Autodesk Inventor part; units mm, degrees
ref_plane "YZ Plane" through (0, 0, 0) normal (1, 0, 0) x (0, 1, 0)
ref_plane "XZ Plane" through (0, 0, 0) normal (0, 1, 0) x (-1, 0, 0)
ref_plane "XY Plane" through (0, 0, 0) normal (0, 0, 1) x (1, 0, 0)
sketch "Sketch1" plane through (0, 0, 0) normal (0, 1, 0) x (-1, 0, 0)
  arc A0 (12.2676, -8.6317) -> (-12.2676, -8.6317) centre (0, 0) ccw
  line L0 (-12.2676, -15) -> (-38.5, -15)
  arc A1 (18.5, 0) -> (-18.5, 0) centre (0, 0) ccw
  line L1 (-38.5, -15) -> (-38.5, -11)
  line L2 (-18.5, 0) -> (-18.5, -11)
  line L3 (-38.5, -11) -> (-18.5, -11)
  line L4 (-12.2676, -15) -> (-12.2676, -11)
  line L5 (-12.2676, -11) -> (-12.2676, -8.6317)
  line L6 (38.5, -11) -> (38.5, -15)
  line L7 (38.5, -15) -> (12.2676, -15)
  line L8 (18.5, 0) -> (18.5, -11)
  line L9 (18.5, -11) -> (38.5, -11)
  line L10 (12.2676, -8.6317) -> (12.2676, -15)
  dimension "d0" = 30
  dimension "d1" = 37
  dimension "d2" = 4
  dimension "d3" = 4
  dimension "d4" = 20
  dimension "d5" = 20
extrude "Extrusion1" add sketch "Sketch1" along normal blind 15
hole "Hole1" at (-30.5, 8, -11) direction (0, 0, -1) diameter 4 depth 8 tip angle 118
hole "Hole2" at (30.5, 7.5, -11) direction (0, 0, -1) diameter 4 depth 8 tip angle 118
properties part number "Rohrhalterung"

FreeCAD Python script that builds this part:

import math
import FreeCAD as App
import Part
import Sketcher
from FreeCAD import Vector
Q = App.Units.Quantity

doc = App.newDocument("Part")
params = doc.addObject("Spreadsheet::Sheet", "Params")
for row, (alias, value) in enumerate([
    ("sketch1_radius", "15 mm"),
    ("sketch1_radius2", "18.5 mm"),
    ("sketch1_width", "20 mm"),
    ("sketch1_height", "4 mm"),
    ("sketch1_height2", "11 mm"),
    ("pad1_length", "15 mm"),
    ("sketch2_diameter", "4 mm"),
    ("hole_diameter", "4 mm"),
    ("hole_depth", "8 mm"),
    ("sketch3_diameter", "4 mm"),
    ("hole2_diameter", "4 mm"),
    ("hole2_depth", "8 mm"),
], start=1):
    params.set(f"A{row}", alias)
    params.set(f"B{row}", "=" + value)
    params.setAlias(f"B{row}", alias)

body = doc.addObject("PartDesign::Body", "Body")

sketch1 = body.newObject("Sketcher::SketchObject", "Sketch")
sketch1.AttachmentSupport = (doc.getObject("XZ_Plane"), [""])
sketch1.MapMode = "FlatFace"
sketch1.addGeometry(Part.ArcOfCircle(Part.Circle(Vector(0, 0, 0), Vector(0, 0, 1), 15), math.radians(-35), math.radians(215)), False)
sketch1.addGeometry(Part.LineSegment(Vector(-12.3, -8.6, 0), Vector(-12.3, -15, 0)), False)
sketch1.addGeometry(Part.LineSegment(Vector(-12.3, -15, 0), Vector(-38.5, -15, 0)), False)
sketch1.addGeometry(Part.LineSegment(Vector(-38.5, -15, 0), Vector(-38.5, -11, 0)), False)
sketch1.addGeometry(Part.LineSegment(Vector(-38.5, -11, 0), Vector(-18.5, -11, 0)), False)
sketch1.addGeometry(Part.LineSegment(Vector(-18.5, -11, 0), Vector(-18.5, 0, 0)), False)
sketch1.addGeometry(Part.ArcOfCircle(Part.Circle(Vector(0, 0, 0), Vector(0, 0, 1), 18.5), math.radians(0), math.radians(180)), False)
sketch1.addGeometry(Part.LineSegment(Vector(18.5, 0, 0), Vector(18.5, -11, 0)), False)
sketch1.addGeometry(Part.LineSegment(Vector(18.5, -11, 0), Vector(38.5, -11, 0)), False)
sketch1.addGeometry(Part.LineSegment(Vector(38.5, -11, 0), Vector(38.5, -15, 0)), False)
sketch1.addGeometry(Part.LineSegment(Vector(38.5, -15, 0), Vector(12.3, -15, 0)), False)
sketch1.addGeometry(Part.LineSegment(Vector(12.3, -15, 0), Vector(12.3, -8.6, 0)), False)
sketch1.addConstraint(Sketcher.Constraint("Coincident", 0, 2, 1, 1))
sketch1.addConstraint(Sketcher.Constraint("Coincident", 1, 2, 2, 1))
sketch1.addConstraint(Sketcher.Constraint("Coincident", 2, 2, 3, 1))
sketch1.addConstraint(Sketcher.Constraint("Coincident", 3, 2, 4, 1))
sketch1.addConstraint(Sketcher.Constraint("Coincident", 4, 2, 5, 1))
sketch1.addConstraint(Sketcher.Constraint("Tangent", 5, 2, 6, 2))
sketch1.addConstraint(Sketcher.Constraint("Tangent", 6, 1, 7, 1))
sketch1.addConstraint(Sketcher.Constraint("Coincident", 7, 2, 8, 1))
sketch1.addConstraint(Sketcher.Constraint("Coincident", 8, 2, 9, 1))
sketch1.addConstraint(Sketcher.Constraint("Coincident", 9, 2, 10, 1))
sketch1.addConstraint(Sketcher.Constraint("Coincident", 10, 2, 11, 1))
sketch1.addConstraint(Sketcher.Constraint("Coincident", 11, 2, 0, 1))
sketch1.addConstraint(Sketcher.Constraint("Vertical", 1))
sketch1.addConstraint(Sketcher.Constraint("Horizontal", 2))
sketch1.addConstraint(Sketcher.Constraint("Vertical", 3))
sketch1.addConstraint(Sketcher.Constraint("Horizontal", 4))
sketch1.addConstraint(Sketcher.Constraint("Vertical", 5))
sketch1.addConstraint(Sketcher.Constraint("Vertical", 7))
sketch1.addConstraint(Sketcher.Constraint("Horizontal", 8))
sketch1.addConstraint(Sketcher.Constraint("Vertical", 9))
sketch1.addConstraint(Sketcher.Constraint("Horizontal", 10))
sketch1.addConstraint(Sketcher.Constraint("Vertical", 11))
sketch1.addConstraint(Sketcher.Constraint("Coincident", 0, 3, -1, 1))
sketch1.addConstraint(Sketcher.Constraint("Coincident", 6, 3, -1, 1))
sketch1.addConstraint(Sketcher.Constraint("Symmetric", 3, 2, 8, 2, -2))
sketch1.addConstraint(Sketcher.Constraint("Symmetric", 1, 2, 10, 2, -2))
sketch1.addConstraint(Sketcher.Constraint("Radius", 0, Q("15 mm")))
sketch1.addConstraint(Sketcher.Constraint("Radius", 6, Q("18.5 mm")))
sketch1.addConstraint(Sketcher.Constraint("DistanceX", 4, 1, 4, 2, Q("20 mm")))
sketch1.addConstraint(Sketcher.Constraint("DistanceY", 3, 1, 3, 2, Q("4 mm")))
sketch1.addConstraint(Sketcher.Constraint("DistanceY", 5, 1, 5, 2, Q("11 mm")))
sketch1.addConstraint(Sketcher.Constraint("DistanceX", 2, 2, 2, 1, Q("26.2324 mm")))
sketch1.setExpression("Constraints[26]", "Params.sketch1_radius")
sketch1.setExpression("Constraints[27]", "Params.sketch1_radius2")
sketch1.setExpression("Constraints[28]", "Params.sketch1_width")
sketch1.setExpression("Constraints[29]", "Params.sketch1_height")
sketch1.setExpression("Constraints[30]", "Params.sketch1_height2")
pad1 = body.newObject("PartDesign::Pad", "Pad")
pad1.Profile = sketch1
pad1.setExpression("Length", "Params.pad1_length")
pad1.Reversed = True

sketch2 = body.newObject("Sketcher::SketchObject", "Sketch001")
sketch2.AttachmentSupport = (doc.getObject("XY_Plane"), [""])
sketch2.MapMode = "FlatFace"
sketch2.AttachmentOffset = App.Placement(Vector(0, 0, -11), App.Rotation())
sketch2.addGeometry(Part.Circle(Vector(-30.5, 8, 0), Vector(0, 0, 1), 2), False)
sketch2.addConstraint(Sketcher.Constraint("Diameter", 0, Q("4 mm")))
sketch2.addConstraint(Sketcher.Constraint("DistanceY", -1, 1, 0, 3, Q("8 mm")))
sketch2.addConstraint(Sketcher.Constraint("DistanceX", 0, 3, -1, 1, Q("30.5 mm")))
sketch2.setExpression("Constraints[0]", "Params.sketch2_diameter")
doc.recompute()
hole = body.newObject("PartDesign::Hole", "Hole")
hole.Profile = sketch2
hole.ThreadType = "None"
hole.setExpression("Diameter", "Params.hole_diameter")
hole.DepthType = "Dimension"
hole.setExpression("Depth", "Params.hole_depth")
hole.DrillPoint = "Angled"
hole.DrillPointAngle = 118

sketch3 = body.newObject("Sketcher::SketchObject", "Sketch002")
sketch3.AttachmentSupport = (doc.getObject("XY_Plane"), [""])
sketch3.MapMode = "FlatFace"
sketch3.AttachmentOffset = App.Placement(Vector(0, 0, -11), App.Rotation())
sketch3.addGeometry(Part.Circle(Vector(30.5, 7.5, 0), Vector(0, 0, 1), 2), False)
sketch3.addConstraint(Sketcher.Constraint("Diameter", 0, Q("4 mm")))
sketch3.addConstraint(Sketcher.Constraint("DistanceX", -1, 1, 0, 3, Q("30.5 mm")))
sketch3.addConstraint(Sketcher.Constraint("DistanceY", -1, 1, 0, 3, Q("7.5 mm")))
sketch3.setExpression("Constraints[0]", "Params.sketch3_diameter")
doc.recompute()
hole2 = body.newObject("PartDesign::Hole", "Hole001")
hole2.Profile = sketch3
hole2.ThreadType = "None"
hole2.setExpression("Diameter", "Params.hole2_diameter")
hole2.DepthType = "Dimension"
hole2.setExpression("Depth", "Params.hole2_depth")
hole2.DrillPoint = "Angled"
hole2.DrillPointAngle = 118

doc.recompute()
